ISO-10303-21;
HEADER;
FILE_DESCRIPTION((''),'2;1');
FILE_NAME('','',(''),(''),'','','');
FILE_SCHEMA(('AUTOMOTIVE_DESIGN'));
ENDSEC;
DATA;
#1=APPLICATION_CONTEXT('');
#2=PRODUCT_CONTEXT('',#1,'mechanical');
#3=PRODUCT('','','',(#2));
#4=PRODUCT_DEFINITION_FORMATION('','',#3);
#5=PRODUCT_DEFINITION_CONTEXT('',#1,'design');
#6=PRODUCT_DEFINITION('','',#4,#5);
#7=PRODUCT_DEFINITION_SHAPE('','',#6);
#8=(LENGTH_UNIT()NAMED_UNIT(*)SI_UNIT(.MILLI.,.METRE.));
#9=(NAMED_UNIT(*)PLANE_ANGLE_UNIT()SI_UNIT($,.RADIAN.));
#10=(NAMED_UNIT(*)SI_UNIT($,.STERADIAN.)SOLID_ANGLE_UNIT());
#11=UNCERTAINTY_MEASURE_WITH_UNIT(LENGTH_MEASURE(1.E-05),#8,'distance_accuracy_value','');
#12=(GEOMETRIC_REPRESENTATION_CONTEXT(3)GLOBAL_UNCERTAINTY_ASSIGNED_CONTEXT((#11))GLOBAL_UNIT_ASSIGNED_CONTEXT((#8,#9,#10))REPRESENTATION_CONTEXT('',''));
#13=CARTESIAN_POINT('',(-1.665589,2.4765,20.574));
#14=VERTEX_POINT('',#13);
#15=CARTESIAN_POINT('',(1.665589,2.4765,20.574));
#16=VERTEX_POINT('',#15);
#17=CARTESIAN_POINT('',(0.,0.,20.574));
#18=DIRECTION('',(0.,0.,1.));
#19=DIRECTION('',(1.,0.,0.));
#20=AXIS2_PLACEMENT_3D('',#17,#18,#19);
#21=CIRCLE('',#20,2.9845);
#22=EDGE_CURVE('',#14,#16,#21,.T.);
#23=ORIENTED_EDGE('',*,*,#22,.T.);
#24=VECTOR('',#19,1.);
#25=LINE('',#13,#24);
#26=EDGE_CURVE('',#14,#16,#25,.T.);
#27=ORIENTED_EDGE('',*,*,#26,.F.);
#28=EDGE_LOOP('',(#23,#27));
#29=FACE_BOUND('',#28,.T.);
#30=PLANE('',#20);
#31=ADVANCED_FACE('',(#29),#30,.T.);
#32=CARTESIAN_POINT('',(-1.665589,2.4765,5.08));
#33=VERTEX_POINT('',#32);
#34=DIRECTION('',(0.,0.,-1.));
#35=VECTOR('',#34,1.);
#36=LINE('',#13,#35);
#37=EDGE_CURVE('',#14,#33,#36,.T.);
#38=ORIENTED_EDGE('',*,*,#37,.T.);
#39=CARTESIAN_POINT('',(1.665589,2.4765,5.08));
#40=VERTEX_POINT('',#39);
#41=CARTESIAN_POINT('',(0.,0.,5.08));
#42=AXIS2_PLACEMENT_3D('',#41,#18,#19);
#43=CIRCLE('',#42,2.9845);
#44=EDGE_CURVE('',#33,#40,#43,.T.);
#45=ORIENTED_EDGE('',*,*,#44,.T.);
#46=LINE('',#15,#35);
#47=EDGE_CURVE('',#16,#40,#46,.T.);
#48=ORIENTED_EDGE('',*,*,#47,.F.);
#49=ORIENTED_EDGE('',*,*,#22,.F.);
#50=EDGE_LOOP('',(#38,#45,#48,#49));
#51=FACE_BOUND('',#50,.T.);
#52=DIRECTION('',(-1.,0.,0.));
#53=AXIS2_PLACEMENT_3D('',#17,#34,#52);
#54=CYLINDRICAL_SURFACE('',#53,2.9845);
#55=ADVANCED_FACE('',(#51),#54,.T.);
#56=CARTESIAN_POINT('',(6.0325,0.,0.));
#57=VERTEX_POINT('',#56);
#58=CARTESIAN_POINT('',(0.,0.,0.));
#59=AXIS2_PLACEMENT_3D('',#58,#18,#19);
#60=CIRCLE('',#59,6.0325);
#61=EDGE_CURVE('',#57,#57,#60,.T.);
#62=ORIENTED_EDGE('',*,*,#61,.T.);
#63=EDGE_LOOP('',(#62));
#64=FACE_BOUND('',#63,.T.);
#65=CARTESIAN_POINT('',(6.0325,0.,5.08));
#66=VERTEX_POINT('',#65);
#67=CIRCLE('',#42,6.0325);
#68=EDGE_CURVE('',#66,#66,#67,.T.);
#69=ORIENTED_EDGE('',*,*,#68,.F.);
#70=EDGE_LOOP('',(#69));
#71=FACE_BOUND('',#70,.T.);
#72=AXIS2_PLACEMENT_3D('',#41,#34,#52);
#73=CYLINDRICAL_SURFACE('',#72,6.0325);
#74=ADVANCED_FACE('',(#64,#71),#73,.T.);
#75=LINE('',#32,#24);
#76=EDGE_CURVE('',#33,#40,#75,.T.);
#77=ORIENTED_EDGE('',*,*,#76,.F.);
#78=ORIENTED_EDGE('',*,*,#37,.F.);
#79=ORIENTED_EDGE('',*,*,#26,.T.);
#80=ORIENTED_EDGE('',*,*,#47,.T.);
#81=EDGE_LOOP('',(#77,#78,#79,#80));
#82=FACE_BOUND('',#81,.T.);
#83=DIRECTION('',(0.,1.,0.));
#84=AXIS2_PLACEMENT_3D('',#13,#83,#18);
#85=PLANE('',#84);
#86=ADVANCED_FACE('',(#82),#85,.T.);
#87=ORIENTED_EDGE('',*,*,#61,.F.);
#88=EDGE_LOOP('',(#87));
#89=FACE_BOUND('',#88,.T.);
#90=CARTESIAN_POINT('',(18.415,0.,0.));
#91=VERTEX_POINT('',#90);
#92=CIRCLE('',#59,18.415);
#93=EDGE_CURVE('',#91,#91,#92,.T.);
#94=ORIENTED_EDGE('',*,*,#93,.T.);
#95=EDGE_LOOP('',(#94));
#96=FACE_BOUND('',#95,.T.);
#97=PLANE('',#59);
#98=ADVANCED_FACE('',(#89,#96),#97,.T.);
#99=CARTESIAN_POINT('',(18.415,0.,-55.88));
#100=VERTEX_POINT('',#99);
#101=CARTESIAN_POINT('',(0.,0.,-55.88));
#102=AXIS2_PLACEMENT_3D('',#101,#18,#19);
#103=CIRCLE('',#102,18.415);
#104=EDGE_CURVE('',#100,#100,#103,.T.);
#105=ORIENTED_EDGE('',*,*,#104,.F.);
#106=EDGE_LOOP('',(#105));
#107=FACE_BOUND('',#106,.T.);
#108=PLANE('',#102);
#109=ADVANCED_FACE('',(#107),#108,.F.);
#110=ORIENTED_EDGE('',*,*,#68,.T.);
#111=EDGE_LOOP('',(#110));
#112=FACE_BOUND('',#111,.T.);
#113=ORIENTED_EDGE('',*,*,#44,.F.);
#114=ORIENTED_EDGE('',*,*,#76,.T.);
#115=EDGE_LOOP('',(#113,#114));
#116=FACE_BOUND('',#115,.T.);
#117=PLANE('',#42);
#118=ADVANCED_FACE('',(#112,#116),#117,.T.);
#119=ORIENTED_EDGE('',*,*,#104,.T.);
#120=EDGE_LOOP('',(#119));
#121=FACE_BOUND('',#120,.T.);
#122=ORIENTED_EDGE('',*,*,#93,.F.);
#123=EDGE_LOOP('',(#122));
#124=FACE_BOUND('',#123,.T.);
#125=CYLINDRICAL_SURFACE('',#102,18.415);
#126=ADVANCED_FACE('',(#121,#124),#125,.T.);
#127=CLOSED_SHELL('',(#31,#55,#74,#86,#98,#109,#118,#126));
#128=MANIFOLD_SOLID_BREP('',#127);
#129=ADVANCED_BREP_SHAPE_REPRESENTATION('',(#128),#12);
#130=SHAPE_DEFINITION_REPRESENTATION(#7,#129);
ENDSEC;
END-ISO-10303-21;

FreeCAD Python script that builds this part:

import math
import FreeCAD as App
import Part
import Sketcher
from FreeCAD import Vector
Q = App.Units.Quantity

doc = App.newDocument("Part")
body = doc.addObject("PartDesign::Body", "Body")

# Sketch on XY plane
sketch1 = body.newObject("Sketcher::SketchObject", "Sketch")
sketch1.AttachmentSupport = (doc.getObject("XY_Plane"), [""])
sketch1.MapMode = "FlatFace"
sketch1.addGeometry(Part.Circle(Vector(0, 0, 0), Vector(0, 0, 1), 18.415), False)
sketch1.addConstraint(Sketcher.Constraint("Coincident", 0, 3, -1, 1))
sketch1.addConstraint(Sketcher.Constraint("Diameter", 0, Q("1.45 in")))
pad1 = body.newObject("PartDesign::Pad", "Pad")
pad1.Profile = sketch1
pad1.Length = Q("2.2 in")
pad1.Reversed = True

# Sketch on XY plane
sketch2 = body.newObject("Sketcher::SketchObject", "Sketch001")
sketch2.AttachmentSupport = (doc.getObject("XY_Plane"), [""])
sketch2.MapMode = "FlatFace"
sketch2.addGeometry(Part.Circle(Vector(0, 0, 0), Vector(0, 0, 1), 6.0325), False)
sketch2.addConstraint(Sketcher.Constraint("Coincident", 0, 3, -1, 1))
sketch2.addConstraint(Sketcher.Constraint("Diameter", 0, Q("0.475 in")))
pad2 = body.newObject("PartDesign::Pad", "Pad001")
pad2.Profile = sketch2
pad2.Length = Q("0.2 in")

# Sketch on XY plane
sketch3 = body.newObject("Sketcher::SketchObject", "Sketch002")
sketch3.AttachmentSupport = (doc.getObject("XY_Plane"), [""])
sketch3.MapMode = "FlatFace"
sketch3.AttachmentOffset = App.Placement(Vector(0, 0, 0.2 * 25.4), App.Rotation())
sketch3.addGeometry(Part.LineSegment(Vector(1.665589, 2.4765, 0), Vector(-1.665589, 2.4765, 0)), False)
sketch3.addGeometry(Part.ArcOfCircle(Part.Circle(Vector(0, 0, 0), Vector(0, 0, 1), 2.9845), math.radians(123.923112), math.radians(416.076888)), False)
sketch3.addConstraint(Sketcher.Constraint("Coincident", 0, 1, 1, 2))
sketch3.addConstraint(Sketcher.Constraint("Coincident", 1, 1, 0, 2))
sketch3.addConstraint(Sketcher.Constraint("Horizontal", 0))
sketch3.addConstraint(Sketcher.Constraint("Coincident", 1, 3, -1, 1))
sketch3.addConstraint(Sketcher.Constraint("Radius", 1, Q("0.1175 in")))
sketch3.addConstraint(Sketcher.Constraint("DistanceY", -1, 1, 0, 1, Q("0.0975 in")))
pad3 = body.newObject("PartDesign::Pad", "Pad002")
pad3.Profile = sketch3
pad3.Length = Q("0.61 in")

doc.recompute()
